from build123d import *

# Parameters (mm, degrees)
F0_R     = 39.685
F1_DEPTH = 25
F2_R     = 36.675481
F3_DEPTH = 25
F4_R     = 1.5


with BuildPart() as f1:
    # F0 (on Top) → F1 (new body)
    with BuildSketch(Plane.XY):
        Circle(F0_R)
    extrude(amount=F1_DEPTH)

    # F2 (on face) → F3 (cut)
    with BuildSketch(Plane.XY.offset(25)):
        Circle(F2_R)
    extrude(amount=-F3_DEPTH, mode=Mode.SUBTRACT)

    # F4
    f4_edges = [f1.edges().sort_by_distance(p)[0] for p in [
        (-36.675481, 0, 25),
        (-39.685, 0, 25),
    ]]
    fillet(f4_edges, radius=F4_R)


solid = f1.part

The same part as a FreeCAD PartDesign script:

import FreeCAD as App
import Part
import Sketcher
Q = App.Units.Quantity


def edges_at(feature, points):
    """Names of the edges that pass closest to the given points."""
    edges = feature.Shape.Edges
    near = lambda p: min(range(len(edges)), key=lambda i: edges[i].distToShape(Part.Vertex(*p))[0])
    return sorted({f"Edge{near(p) + 1}" for p in points})

doc = App.newDocument("Part")
body = doc.addObject("PartDesign::Body", "Body")

# Sketch on XY plane
sketch1 = body.newObject("Sketcher::SketchObject", "Sketch")
sketch1.AttachmentSupport = (doc.getObject("XY_Plane"), [""])
sketch1.MapMode = "FlatFace"
sketch1.addGeometry(Part.Circle(App.Vector(0, 0, 0), App.Vector(0, 0, 1), 40), False)
sketch1.addConstraint([
    Sketcher.Constraint("Coincident", 0, 3, -1, 1),
    Sketcher.Constraint("Diameter", 0, Q("79.37 mm")),
])
pad1 = body.newObject("PartDesign::Pad", "Pad")
pad1.Profile = sketch1
pad1.Length = 25

# Sketch on XY plane
sketch2 = body.newObject("Sketcher::SketchObject", "Sketch001")
sketch2.AttachmentSupport = (doc.getObject("XY_Plane"), [""])
sketch2.MapMode = "FlatFace"
sketch2.AttachmentOffset = App.Placement(App.Vector(0, 0, 25), App.Rotation())
sketch2.addGeometry(Part.Circle(App.Vector(0, 0, 0), App.Vector(0, 0, 1), 37), False)
sketch2.addConstraint([
    Sketcher.Constraint("Coincident", 0, 3, -1, 1),
    Sketcher.Constraint("Diameter", 0, Q("73.350962 mm")),
])
pocket1 = body.newObject("PartDesign::Pocket", "Pocket")
pocket1.Profile = sketch2
pocket1.Length = 25
doc.recompute()

fillet = body.newObject("PartDesign::Fillet", "Fillet")
fillet.Base = (pocket1, edges_at(pocket1, [(-36.675, 0, 25), (-39.685, 0, 25)]))
fillet.Radius = 1.5

doc.recompute()
